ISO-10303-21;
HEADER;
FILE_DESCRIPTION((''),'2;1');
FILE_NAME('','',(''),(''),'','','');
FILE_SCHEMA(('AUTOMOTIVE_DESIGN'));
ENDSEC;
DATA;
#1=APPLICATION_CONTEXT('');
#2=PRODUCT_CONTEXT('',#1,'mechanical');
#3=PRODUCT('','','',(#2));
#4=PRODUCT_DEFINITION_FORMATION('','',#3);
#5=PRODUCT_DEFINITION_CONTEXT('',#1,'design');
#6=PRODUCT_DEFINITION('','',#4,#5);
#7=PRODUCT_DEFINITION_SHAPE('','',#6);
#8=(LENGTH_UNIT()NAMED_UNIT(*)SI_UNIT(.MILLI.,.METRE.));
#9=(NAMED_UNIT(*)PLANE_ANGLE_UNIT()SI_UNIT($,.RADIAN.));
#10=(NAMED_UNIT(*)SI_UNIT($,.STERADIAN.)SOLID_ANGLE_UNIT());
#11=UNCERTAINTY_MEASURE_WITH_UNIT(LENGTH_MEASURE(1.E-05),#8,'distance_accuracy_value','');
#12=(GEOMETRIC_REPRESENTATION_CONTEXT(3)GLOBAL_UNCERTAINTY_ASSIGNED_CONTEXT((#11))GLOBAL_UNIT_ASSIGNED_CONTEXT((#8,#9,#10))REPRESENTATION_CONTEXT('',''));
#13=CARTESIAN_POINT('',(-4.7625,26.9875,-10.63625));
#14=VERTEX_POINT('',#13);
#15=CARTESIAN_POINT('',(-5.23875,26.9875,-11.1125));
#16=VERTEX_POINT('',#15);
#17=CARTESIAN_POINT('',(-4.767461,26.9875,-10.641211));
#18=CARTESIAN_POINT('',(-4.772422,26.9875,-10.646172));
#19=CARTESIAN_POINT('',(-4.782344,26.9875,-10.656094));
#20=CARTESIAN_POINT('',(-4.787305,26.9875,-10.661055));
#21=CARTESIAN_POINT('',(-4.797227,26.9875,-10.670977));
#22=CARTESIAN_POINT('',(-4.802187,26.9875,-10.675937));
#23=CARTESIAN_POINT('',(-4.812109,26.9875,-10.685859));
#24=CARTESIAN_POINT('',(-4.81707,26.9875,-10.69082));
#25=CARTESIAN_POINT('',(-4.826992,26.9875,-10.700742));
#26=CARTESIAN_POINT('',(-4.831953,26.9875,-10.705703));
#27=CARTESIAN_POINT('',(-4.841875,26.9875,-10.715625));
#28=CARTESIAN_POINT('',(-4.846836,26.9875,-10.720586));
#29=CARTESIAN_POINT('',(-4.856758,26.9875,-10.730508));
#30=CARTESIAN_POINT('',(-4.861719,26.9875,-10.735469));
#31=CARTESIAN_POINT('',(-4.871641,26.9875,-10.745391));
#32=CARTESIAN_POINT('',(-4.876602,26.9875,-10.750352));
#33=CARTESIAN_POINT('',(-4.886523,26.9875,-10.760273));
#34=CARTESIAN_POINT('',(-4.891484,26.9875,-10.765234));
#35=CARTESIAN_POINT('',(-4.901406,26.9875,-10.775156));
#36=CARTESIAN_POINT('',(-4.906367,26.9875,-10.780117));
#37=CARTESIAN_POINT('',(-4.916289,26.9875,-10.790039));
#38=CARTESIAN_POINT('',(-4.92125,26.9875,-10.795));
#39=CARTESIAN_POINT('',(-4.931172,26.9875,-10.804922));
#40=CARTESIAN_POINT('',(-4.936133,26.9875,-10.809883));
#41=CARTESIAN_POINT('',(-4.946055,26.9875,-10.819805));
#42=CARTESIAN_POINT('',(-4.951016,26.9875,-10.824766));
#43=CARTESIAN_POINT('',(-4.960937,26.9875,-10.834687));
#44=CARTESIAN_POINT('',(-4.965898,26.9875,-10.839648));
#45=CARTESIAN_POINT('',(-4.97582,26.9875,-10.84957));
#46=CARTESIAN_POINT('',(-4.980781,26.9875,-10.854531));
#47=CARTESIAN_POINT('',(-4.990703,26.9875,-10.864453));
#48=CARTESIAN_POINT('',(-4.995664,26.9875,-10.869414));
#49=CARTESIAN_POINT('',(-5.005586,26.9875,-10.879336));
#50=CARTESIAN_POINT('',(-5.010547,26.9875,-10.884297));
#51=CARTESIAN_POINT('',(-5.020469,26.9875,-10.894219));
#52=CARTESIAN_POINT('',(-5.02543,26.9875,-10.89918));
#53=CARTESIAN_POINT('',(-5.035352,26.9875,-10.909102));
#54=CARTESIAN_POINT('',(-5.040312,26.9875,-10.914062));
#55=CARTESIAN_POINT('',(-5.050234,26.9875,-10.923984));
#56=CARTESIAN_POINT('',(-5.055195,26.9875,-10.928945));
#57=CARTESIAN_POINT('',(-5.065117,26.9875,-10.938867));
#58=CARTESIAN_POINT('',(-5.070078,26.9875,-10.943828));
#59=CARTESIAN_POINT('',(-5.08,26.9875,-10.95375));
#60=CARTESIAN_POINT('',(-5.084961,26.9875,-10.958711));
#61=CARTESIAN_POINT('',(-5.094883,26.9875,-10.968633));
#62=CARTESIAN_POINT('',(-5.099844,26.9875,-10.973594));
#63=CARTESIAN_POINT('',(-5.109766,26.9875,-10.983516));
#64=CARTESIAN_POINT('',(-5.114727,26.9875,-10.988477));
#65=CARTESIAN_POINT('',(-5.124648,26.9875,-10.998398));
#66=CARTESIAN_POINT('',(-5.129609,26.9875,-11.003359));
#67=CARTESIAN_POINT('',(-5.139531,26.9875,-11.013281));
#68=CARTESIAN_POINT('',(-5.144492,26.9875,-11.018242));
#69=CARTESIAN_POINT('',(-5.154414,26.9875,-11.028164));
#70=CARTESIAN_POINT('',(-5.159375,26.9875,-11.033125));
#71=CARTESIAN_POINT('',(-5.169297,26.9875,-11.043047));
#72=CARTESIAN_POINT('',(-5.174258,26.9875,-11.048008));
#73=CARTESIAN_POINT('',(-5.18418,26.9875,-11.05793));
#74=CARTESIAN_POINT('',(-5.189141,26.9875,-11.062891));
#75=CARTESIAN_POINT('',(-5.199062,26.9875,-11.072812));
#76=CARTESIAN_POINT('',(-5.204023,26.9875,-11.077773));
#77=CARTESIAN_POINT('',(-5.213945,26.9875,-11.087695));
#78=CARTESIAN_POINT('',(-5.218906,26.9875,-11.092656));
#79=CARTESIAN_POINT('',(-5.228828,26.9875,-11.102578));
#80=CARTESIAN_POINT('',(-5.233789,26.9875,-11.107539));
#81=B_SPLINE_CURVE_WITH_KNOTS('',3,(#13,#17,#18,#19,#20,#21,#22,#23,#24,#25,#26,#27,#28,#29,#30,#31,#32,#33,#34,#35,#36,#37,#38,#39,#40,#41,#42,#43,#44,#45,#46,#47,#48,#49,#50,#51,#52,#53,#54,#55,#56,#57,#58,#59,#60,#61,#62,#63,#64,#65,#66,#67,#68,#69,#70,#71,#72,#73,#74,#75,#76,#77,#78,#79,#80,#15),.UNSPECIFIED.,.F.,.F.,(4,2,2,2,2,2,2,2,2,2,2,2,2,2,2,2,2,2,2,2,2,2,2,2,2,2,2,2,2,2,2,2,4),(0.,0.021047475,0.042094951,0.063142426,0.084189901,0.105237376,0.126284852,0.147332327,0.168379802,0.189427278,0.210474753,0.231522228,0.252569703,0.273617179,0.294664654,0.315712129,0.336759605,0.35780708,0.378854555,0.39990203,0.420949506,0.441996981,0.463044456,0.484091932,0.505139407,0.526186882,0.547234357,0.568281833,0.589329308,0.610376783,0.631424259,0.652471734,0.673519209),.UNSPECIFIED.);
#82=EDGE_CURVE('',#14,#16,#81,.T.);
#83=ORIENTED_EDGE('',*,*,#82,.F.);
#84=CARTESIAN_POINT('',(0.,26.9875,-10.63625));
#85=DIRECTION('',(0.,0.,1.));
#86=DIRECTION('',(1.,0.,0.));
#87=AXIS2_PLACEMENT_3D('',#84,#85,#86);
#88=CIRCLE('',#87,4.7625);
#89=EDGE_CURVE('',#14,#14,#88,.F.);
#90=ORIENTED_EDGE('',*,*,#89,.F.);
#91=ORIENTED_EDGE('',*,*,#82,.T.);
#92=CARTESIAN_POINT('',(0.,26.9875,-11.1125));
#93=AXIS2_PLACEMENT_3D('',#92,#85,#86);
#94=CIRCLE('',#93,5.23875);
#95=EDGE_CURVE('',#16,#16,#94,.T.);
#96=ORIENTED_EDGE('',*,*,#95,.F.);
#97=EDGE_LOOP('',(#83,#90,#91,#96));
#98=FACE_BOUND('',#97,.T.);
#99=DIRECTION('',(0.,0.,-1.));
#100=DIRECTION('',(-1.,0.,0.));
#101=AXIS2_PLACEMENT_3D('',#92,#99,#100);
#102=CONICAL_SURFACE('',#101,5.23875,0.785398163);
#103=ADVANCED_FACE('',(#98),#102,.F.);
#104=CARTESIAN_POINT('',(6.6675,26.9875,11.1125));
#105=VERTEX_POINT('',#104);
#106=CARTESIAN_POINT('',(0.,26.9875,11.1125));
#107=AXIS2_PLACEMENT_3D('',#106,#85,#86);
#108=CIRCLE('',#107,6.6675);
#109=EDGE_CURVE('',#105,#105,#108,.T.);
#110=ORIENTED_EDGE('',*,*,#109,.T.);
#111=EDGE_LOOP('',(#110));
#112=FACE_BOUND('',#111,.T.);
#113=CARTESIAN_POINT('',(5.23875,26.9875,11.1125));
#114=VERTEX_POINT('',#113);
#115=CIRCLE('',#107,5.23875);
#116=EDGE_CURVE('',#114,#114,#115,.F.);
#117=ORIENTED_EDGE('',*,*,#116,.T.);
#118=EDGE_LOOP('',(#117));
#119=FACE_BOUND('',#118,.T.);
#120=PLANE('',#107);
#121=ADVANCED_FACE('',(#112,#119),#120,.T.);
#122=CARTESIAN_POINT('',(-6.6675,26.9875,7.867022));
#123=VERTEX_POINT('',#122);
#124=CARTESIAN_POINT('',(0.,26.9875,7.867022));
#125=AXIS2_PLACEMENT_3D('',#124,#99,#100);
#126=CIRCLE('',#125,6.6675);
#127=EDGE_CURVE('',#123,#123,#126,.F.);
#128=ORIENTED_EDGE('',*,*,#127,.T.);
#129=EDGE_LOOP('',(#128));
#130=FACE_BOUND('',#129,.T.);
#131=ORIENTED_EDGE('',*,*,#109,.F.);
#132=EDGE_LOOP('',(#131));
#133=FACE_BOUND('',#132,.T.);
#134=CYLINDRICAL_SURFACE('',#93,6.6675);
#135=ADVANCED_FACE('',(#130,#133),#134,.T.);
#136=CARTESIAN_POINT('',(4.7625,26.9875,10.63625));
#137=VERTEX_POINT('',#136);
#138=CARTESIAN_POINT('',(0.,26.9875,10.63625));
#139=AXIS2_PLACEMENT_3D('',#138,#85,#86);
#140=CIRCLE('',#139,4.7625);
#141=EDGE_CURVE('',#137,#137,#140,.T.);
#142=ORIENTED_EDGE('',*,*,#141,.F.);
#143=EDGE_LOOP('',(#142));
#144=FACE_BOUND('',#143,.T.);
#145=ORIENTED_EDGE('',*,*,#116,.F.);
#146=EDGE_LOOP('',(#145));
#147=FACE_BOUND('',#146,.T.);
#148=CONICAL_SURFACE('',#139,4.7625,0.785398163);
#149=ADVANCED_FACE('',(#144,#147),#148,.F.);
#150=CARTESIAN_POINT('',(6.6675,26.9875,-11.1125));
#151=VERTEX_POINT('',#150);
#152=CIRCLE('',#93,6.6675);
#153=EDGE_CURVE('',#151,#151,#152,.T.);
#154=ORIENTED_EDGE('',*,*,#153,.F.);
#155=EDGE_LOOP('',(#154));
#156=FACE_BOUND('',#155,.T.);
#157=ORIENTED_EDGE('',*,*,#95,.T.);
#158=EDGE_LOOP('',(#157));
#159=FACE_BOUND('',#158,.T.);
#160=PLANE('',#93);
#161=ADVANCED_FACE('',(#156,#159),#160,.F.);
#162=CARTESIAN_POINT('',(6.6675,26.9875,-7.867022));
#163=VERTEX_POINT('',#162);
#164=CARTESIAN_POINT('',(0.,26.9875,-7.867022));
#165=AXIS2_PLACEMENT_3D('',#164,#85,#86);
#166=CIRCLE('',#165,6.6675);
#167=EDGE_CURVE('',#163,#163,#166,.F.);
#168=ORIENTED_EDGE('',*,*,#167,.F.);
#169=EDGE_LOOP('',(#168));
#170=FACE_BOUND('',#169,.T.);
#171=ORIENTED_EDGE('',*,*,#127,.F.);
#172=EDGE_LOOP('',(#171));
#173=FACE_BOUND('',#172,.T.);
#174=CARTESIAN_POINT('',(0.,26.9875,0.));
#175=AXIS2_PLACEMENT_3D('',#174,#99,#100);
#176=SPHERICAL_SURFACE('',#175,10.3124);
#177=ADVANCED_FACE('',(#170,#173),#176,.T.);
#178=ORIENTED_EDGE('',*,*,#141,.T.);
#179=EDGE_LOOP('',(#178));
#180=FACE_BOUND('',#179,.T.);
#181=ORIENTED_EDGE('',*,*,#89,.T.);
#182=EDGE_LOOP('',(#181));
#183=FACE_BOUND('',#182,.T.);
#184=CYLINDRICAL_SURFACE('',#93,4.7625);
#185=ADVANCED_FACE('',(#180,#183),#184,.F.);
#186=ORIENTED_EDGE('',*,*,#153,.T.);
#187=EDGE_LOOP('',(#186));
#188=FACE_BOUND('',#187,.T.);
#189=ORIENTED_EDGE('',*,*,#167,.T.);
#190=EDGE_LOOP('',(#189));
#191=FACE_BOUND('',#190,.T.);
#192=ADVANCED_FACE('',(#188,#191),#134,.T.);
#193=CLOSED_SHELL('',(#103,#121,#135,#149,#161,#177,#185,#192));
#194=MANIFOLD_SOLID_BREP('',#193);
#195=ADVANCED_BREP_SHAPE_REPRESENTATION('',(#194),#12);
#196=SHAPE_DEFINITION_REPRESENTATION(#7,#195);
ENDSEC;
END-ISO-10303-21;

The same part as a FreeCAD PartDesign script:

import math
import FreeCAD as App
import Part
import Sketcher
from FreeCAD import Vector
Q = App.Units.Quantity


def edges_at(feature, points):
    """Names of the edges that pass closest to the given points."""
    edges = feature.Shape.Edges
    near = lambda p: min(range(len(edges)), key=lambda i: edges[i].distToShape(Part.Vertex(*p))[0])
    return sorted({f"Edge{near(p) + 1}" for p in points})

doc = App.newDocument("Part")
body = doc.addObject("PartDesign::Body", "Body")

sketch1 = doc.addObject("Sketcher::SketchObject", "Sketch")
body.addObject(sketch1)
sketch1.AttachmentSupport = (doc.XY_Plane, [""])
sketch1.MapMode = "FlatFace"
sketch1.addGeometry([
    Part.LineSegment(Vector(0, 37, 0), Vector(0, 17, 0)),
    Part.ArcOfCircle(Part.Circle(Vector(0, 27, 0), Vector(0, 0, 1), 10), math.radians(-90), math.radians(90)),
], False)
sketch1.addConstraint([
    Sketcher.Constraint("Coincident", 0, 1, 1, 2),
    Sketcher.Constraint("Coincident", 1, 1, 0, 2),
    Sketcher.Constraint("Vertical", 0),
    Sketcher.Constraint("PointOnObject", 1, 3, -2),
    Sketcher.Constraint("PointOnObject", 0, 1, -2),
    Sketcher.Constraint("Radius", 1, Q("0.406 in")),
    Sketcher.Constraint("DistanceY", -1, 1, 1, 3, Q("1.0625 in")),
])
revolution = doc.addObject("PartDesign::Revolution", "Revolution")
body.addObject(revolution)
revolution.Profile = sketch1
revolution.ReferenceAxis = (sketch1, ["V_Axis"])
revolution.Angle = 360

sketch2 = doc.addObject("Sketcher::SketchObject", "Sketch001")
body.addObject(sketch2)
sketch2.AttachmentSupport = (doc.XY_Plane, [""])
sketch2.MapMode = "FlatFace"
sketch2.addGeometry(Part.Circle(Vector(0, 27, 0), Vector(0, 0, 1), 7), False)
sketch2.addConstraint([
    Sketcher.Constraint("PointOnObject", 0, 3, -2),
    Sketcher.Constraint("Diameter", 0, Q("0.525 in")),
    Sketcher.Constraint("DistanceY", -1, 1, 0, 3, Q("1.0625 in")),
])
pad1 = doc.addObject("PartDesign::Pad", "Pad")
body.addObject(pad1)
pad1.Profile = sketch2
pad1.Type = "TwoLengths"
pad1.Length = Q("0.4375 in")
pad1.Length2 = Q("0.4375 in")

sketch3 = doc.addObject("Sketcher::SketchObject", "Sketch002")
body.addObject(sketch3)
sketch3.AttachmentSupport = (doc.XY_Plane, [""])
sketch3.MapMode = "FlatFace"
sketch3.addGeometry(Part.Circle(Vector(0, 27, 0), Vector(0, 0, 1), 4.8), False)
sketch3.addConstraint([
    Sketcher.Constraint("PointOnObject", 0, 3, -2),
    Sketcher.Constraint("Diameter", 0, Q("0.375 in")),
    Sketcher.Constraint("DistanceY", -1, 1, 0, 3, Q("1.0625 in")),
])
pocket1 = doc.addObject("PartDesign::Pocket", "Pocket")
body.addObject(pocket1)
pocket1.Profile = sketch3
pocket1.Type = "ThroughAll"
pocket1.Midplane = True
doc.recompute()

chamfer = doc.addObject("PartDesign::Chamfer", "Chamfer")
body.addObject(chamfer)
chamfer.Base = (pocket1, edges_at(pocket1, [(-4.763, 26.988, -11.113), (-4.763, 26.988, 11.113)]))
chamfer.Size = 0.47625

doc.recompute()
